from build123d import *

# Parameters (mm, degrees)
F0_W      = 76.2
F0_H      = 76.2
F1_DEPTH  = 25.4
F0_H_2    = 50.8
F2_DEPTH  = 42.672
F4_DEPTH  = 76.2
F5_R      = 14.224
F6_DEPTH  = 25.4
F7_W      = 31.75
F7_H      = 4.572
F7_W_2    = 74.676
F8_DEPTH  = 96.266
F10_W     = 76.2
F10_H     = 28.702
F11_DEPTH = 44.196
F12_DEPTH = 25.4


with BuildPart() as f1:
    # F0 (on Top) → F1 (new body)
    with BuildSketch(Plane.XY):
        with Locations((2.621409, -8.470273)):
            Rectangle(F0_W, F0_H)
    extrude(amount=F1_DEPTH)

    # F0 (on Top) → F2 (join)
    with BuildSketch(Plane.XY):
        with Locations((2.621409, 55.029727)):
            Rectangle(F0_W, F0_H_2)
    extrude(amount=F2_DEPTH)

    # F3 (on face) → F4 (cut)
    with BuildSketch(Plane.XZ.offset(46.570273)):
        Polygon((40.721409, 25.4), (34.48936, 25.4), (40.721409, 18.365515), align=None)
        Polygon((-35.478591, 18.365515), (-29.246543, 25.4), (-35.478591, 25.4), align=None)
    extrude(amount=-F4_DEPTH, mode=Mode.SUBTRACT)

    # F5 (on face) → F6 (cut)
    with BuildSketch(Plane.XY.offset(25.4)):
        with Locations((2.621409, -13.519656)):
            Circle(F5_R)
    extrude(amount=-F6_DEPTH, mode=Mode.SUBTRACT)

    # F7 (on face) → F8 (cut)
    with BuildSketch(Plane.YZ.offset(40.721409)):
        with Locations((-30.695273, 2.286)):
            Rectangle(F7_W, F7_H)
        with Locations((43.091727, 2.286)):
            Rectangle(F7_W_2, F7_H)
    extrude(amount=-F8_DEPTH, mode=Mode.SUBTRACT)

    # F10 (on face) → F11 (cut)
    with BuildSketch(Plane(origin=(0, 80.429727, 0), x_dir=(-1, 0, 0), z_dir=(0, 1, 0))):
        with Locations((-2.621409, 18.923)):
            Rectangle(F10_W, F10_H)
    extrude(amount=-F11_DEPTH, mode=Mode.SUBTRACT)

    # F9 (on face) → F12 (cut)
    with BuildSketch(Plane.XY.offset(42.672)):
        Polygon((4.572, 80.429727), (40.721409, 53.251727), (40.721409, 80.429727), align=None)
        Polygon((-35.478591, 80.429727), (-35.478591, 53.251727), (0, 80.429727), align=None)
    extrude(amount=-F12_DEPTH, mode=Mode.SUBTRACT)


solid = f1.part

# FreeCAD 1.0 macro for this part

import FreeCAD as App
import Part
import Sketcher
Q = App.Units.Quantity

doc = App.newDocument("Part")
body = doc.addObject("PartDesign::Body", "Body")

# Sketch on XY plane
sketch1 = body.newObject("Sketcher::SketchObject", "Sketch")
sketch1.AttachmentSupport = (doc.getObject("XY_Plane"), [""])
sketch1.MapMode = "FlatFace"
sketch1.addGeometry(Part.LineSegment(App.Vector(-35.478591, 29.629727, 0), App.Vector(-35.478591, -46.570273, 0)), False)
sketch1.addGeometry(Part.LineSegment(App.Vector(-35.478591, -46.570273, 0), App.Vector(40.721409, -46.570273, 0)), False)
sketch1.addGeometry(Part.LineSegment(App.Vector(40.721409, -46.570273, 0), App.Vector(40.721409, 29.629727, 0)), False)
sketch1.addGeometry(Part.LineSegment(App.Vector(40.721409, 29.629727, 0), App.Vector(-35.478591, 29.629727, 0)), False)
sketch1.addConstraint(Sketcher.Constraint("Coincident", 0, 2, 1, 1))
sketch1.addConstraint(Sketcher.Constraint("Coincident", 1, 2, 2, 1))
sketch1.addConstraint(Sketcher.Constraint("Coincident", 2, 2, 3, 1))
sketch1.addConstraint(Sketcher.Constraint("Coincident", 3, 2, 0, 1))
sketch1.addConstraint(Sketcher.Constraint("Vertical", 0))
sketch1.addConstraint(Sketcher.Constraint("Horizontal", 1))
sketch1.addConstraint(Sketcher.Constraint("Vertical", 2))
sketch1.addConstraint(Sketcher.Constraint("Horizontal", 3))
sketch1.addConstraint(Sketcher.Constraint("Equal", 3, 0))
sketch1.addConstraint(Sketcher.Constraint("DistanceX", 1, 1, 1, 2, Q("3 in")))
sketch1.addConstraint(Sketcher.Constraint("DistanceX", 0, 2, -1, 1, Q("35.478591 mm")))
sketch1.addConstraint(Sketcher.Constraint("DistanceY", 0, 2, -1, 1, Q("46.570273 mm")))
pad1 = body.newObject("PartDesign::Pad", "Pad")
pad1.Profile = sketch1
pad1.Length = Q("1 in")

# Sketch on XY plane
sketch2 = body.newObject("Sketcher::SketchObject", "Sketch001")
sketch2.AttachmentSupport = (doc.getObject("XY_Plane"), [""])
sketch2.MapMode = "FlatFace"
sketch2.addGeometry(Part.LineSegment(App.Vector(-35.478591, 80.429727, 0), App.Vector(-35.478591, 29.629727, 0)), False)
sketch2.addGeometry(Part.LineSegment(App.Vector(-35.478591, 29.629727, 0), App.Vector(40.721409, 29.629727, 0)), False)
sketch2.addGeometry(Part.LineSegment(App.Vector(40.721409, 29.629727, 0), App.Vector(40.721409, 80.429727, 0)), False)
sketch2.addGeometry(Part.LineSegment(App.Vector(40.721409, 80.429727, 0), App.Vector(-35.478591, 80.429727, 0)), False)
sketch2.addConstraint(Sketcher.Constraint("Coincident", 0, 2, 1, 1))
sketch2.addConstraint(Sketcher.Constraint("Coincident", 1, 2, 2, 1))
sketch2.addConstraint(Sketcher.Constraint("Coincident", 2, 2, 3, 1))
sketch2.addConstraint(Sketcher.Constraint("Coincident", 3, 2, 0, 1))
sketch2.addConstraint(Sketcher.Constraint("Vertical", 0))
sketch2.addConstraint(Sketcher.Constraint("Horizontal", 1))
sketch2.addConstraint(Sketcher.Constraint("Vertical", 2))
sketch2.addConstraint(Sketcher.Constraint("Horizontal", 3))
sketch2.addConstraint(Sketcher.Constraint("DistanceX", 1, 1, 1, 2, Q("3 in")))
sketch2.addConstraint(Sketcher.Constraint("DistanceY", 0, 2, 0, 1, Q("2 in")))
sketch2.addConstraint(Sketcher.Constraint("DistanceX", 0, 2, -1, 1, Q("35.478591 mm")))
sketch2.addConstraint(Sketcher.Constraint("DistanceY", -1, 1, 0, 2, Q("29.629727 mm")))
pad2 = body.newObject("PartDesign::Pad", "Pad001")
pad2.Profile = sketch2
pad2.Length = Q("1.68 in")

# Sketch on XZ plane
sketch3 = body.newObject("Sketcher::SketchObject", "Sketch002")
sketch3.AttachmentSupport = (doc.getObject("XZ_Plane"), [""])
sketch3.MapMode = "FlatFace"
sketch3.AttachmentOffset = App.Placement(App.Vector(0, 0, 46.570273), App.Rotation())
sketch3.addGeometry(Part.LineSegment(App.Vector(40.721409, 25.4, 0), App.Vector(34.48936, 25.4, 0)), False)
sketch3.addGeometry(Part.LineSegment(App.Vector(34.48936, 25.4, 0), App.Vector(40.721409, 18.365515, 0)), False)
sketch3.addGeometry(Part.LineSegment(App.Vector(40.721409, 18.365515, 0), App.Vector(40.721409, 25.4, 0)), False)
sketch3.addGeometry(Part.LineSegment(App.Vector(-35.478591, 18.365515, 0), App.Vector(-29.246543, 25.4, 0)), False)
sketch3.addGeometry(Part.LineSegment(App.Vector(-29.246543, 25.4, 0), App.Vector(-35.478591, 25.4, 0)), False)
sketch3.addGeometry(Part.LineSegment(App.Vector(-35.478591, 25.4, 0), App.Vector(-35.478591, 18.365515, 0)), False)
sketch3.addConstraint(Sketcher.Constraint("Coincident", 0, 2, 1, 1))
sketch3.addConstraint(Sketcher.Constraint("Coincident", 1, 2, 2, 1))
sketch3.addConstraint(Sketcher.Constraint("Coincident", 2, 2, 0, 1))
sketch3.addConstraint(Sketcher.Constraint("Coincident", 3, 2, 4, 1))
sketch3.addConstraint(Sketcher.Constraint("Coincident", 4, 2, 5, 1))
sketch3.addConstraint(Sketcher.Constraint("Coincident", 5, 2, 3, 1))
sketch3.addConstraint(Sketcher.Constraint("Horizontal", 0))
sketch3.addConstraint(Sketcher.Constraint("Vertical", 2))
sketch3.addConstraint(Sketcher.Constraint("Horizontal", 4))
sketch3.addConstraint(Sketcher.Constraint("Vertical", 5))
sketch3.addConstraint(Sketcher.Constraint("Horizontal", 2, 2, 3, 2))
sketch3.addConstraint(Sketcher.Constraint("Horizontal", 1, 2, 5, 2))
sketch3.addConstraint(Sketcher.Constraint("Equal", 0, 4))
sketch3.addConstraint(Sketcher.Constraint("DistanceY", -1, 1, 0, 2, Q("1 in")))
sketch3.addConstraint(Sketcher.Constraint("DistanceX", 4, 2, 2, 2, Q("3 in")))
sketch3.addConstraint(Sketcher.Constraint("Distance", 1, Q("0.37 in")))
sketch3.addConstraint(Sketcher.Constraint("DistanceX", 0, 2, 0, 1, Q("6.232049 mm")))
sketch3.addConstraint(Sketcher.Constraint("DistanceX", -1, 1, 0, 2, Q("34.48936 mm")))
pocket1 = body.newObject("PartDesign::Pocket", "Pocket")
pocket1.Profile = sketch3
pocket1.Length = Q("3 in")

# Sketch on XY plane
sketch4 = body.newObject("Sketcher::SketchObject", "Sketch003")
sketch4.AttachmentSupport = (doc.getObject("XY_Plane"), [""])
sketch4.MapMode = "FlatFace"
sketch4.AttachmentOffset = App.Placement(App.Vector(0, 0, 1 * 25.4), App.Rotation())
sketch4.addGeometry(Part.Circle(App.Vector(2.621409, -13.519656, 0), App.Vector(0, 0, 1), 14.224), False)
sketch4.addConstraint(Sketcher.Constraint("Diameter", 0, Q("1.12 in")))
sketch4.addConstraint(Sketcher.Constraint("DistanceX", -1, 1, 0, 3, Q("2.621409 mm")))
sketch4.addConstraint(Sketcher.Constraint("DistanceY", 0, 3, -1, 1, Q("13.519656 mm")))
pocket2 = body.newObject("PartDesign::Pocket", "Pocket001")
pocket2.Profile = sketch4
pocket2.Length = Q("1 in")

# Sketch on YZ plane
sketch5 = body.newObject("Sketcher::SketchObject", "Sketch004")
sketch5.AttachmentSupport = (doc.getObject("YZ_Plane"), [""])
sketch5.MapMode = "FlatFace"
sketch5.AttachmentOffset = App.Placement(App.Vector(0, 0, 40.721409), App.Rotation())
sketch5.addGeometry(Part.LineSegment(App.Vector(-46.570273, 4.572, 0), App.Vector(-46.570273, 0, 0)), False)
sketch5.addGeometry(Part.LineSegment(App.Vector(-46.570273, 0, 0), App.Vector(-14.820273, 0, 0)), False)
sketch5.addGeometry(Part.LineSegment(App.Vector(-14.820273, 0, 0), App.Vector(-14.820273, 4.572, 0)), False)
sketch5.addGeometry(Part.LineSegment(App.Vector(-14.820273, 4.572, 0), App.Vector(-46.570273, 4.572, 0)), False)
sketch5.addGeometry(Part.LineSegment(App.Vector(5.753727, 4.572, 0), App.Vector(5.753727, 0, 0)), False)
sketch5.addGeometry(Part.LineSegment(App.Vector(5.753727, 0, 0), App.Vector(80.429727, 0, 0)), False)
sketch5.addGeometry(Part.LineSegment(App.Vector(80.429727, 0, 0), App.Vector(80.429727, 4.572, 0)), False)
sketch5.addGeometry(Part.LineSegment(App.Vector(80.429727, 4.572, 0), App.Vector(5.753727, 4.572, 0)), False)
sketch5.addConstraint(Sketcher.Constraint("Coincident", 0, 2, 1, 1))
sketch5.addConstraint(Sketcher.Constraint("Coincident", 1, 2, 2, 1))
sketch5.addConstraint(Sketcher.Constraint("Coincident", 2, 2, 3, 1))
sketch5.addConstraint(Sketcher.Constraint("Coincident", 3, 2, 0, 1))
sketch5.addConstraint(Sketcher.Constraint("Coincident", 4, 2, 5, 1))
sketch5.addConstraint(Sketcher.Constraint("Coincident", 5, 2, 6, 1))
sketch5.addConstraint(Sketcher.Constraint("Coincident", 6, 2, 7, 1))
sketch5.addConstraint(Sketcher.Constraint("Coincident", 7, 2, 4, 1))
sketch5.addConstraint(Sketcher.Constraint("Vertical", 0))
sketch5.addConstraint(Sketcher.Constraint("Horizontal", 1))
sketch5.addConstraint(Sketcher.Constraint("Vertical", 2))
sketch5.addConstraint(Sketcher.Constraint("Horizontal", 3))
sketch5.addConstraint(Sketcher.Constraint("Vertical", 4))
sketch5.addConstraint(Sketcher.Constraint("Horizontal", 5))
sketch5.addConstraint(Sketcher.Constraint("Vertical", 6))
sketch5.addConstraint(Sketcher.Constraint("Horizontal", 7))
sketch5.addConstraint(Sketcher.Constraint("PointOnObject", 0, 2, -1))
sketch5.addConstraint(Sketcher.Constraint("PointOnObject", 4, 2, -1))
sketch5.addConstraint(Sketcher.Constraint("Horizontal", 3, 2, 6, 2))
sketch5.addConstraint(Sketcher.Constraint("DistanceX", 0, 2, 5, 2, Q("5 in")))
sketch5.addConstraint(Sketcher.Constraint("DistanceX", 1, 1, 1, 2, Q("1.25 in")))
sketch5.addConstraint(Sketcher.Constraint("DistanceX", 5, 1, 5, 2, Q("2.94 in")))
sketch5.addConstraint(Sketcher.Constraint("DistanceY", 0, 2, 0, 1, Q("0.18 in")))
sketch5.addConstraint(Sketcher.Constraint("DistanceX", 0, 2, -1, 1, Q("46.570273 mm")))
pocket3 = body.newObject("PartDesign::Pocket", "Pocket002")
pocket3.Profile = sketch5
pocket3.Length = Q("3.79 in")

# Sketch on XZ plane
sketch6 = body.newObject("Sketcher::SketchObject", "Sketch005")
sketch6.AttachmentSupport = (doc.getObject("XZ_Plane"), [""])
sketch6.MapMode = "FlatFace"
sketch6.AttachmentOffset = App.Placement(App.Vector(0, 0, -80.429727), App.Rotation())
sketch6.addGeometry(Part.LineSegment(App.Vector(40.721409, 33.274, 0), App.Vector(40.721409, 4.572, 0)), False)
sketch6.addGeometry(Part.LineSegment(App.Vector(40.721409, 4.572, 0), App.Vector(-35.478591, 4.572, 0)), False)
sketch6.addGeometry(Part.LineSegment(App.Vector(-35.478591, 4.572, 0), App.Vector(-35.478591, 33.274, 0)), False)
sketch6.addGeometry(Part.LineSegment(App.Vector(-35.478591, 33.274, 0), App.Vector(40.721409, 33.274, 0)), False)
sketch6.addConstraint(Sketcher.Constraint("Coincident", 0, 2, 1, 1))
sketch6.addConstraint(Sketcher.Constraint("Coincident", 1, 2, 2, 1))
sketch6.addConstraint(Sketcher.Constraint("Coincident", 2, 2, 3, 1))
sketch6.addConstraint(Sketcher.Constraint("Coincident", 3, 2, 0, 1))
sketch6.addConstraint(Sketcher.Constraint("Vertical", 0))
sketch6.addConstraint(Sketcher.Constraint("Horizontal", 1))
sketch6.addConstraint(Sketcher.Constraint("Vertical", 2))
sketch6.addConstraint(Sketcher.Constraint("Horizontal", 3))
sketch6.addConstraint(Sketcher.Constraint("DistanceX", 1, 2, 1, 1, Q("3 in")))
sketch6.addConstraint(Sketcher.Constraint("DistanceY", 0, 2, 0, 1, Q("1.13 in")))
sketch6.addConstraint(Sketcher.Constraint("DistanceY", -1, 1, 0, 2, Q("0.18 in")))
sketch6.addConstraint(Sketcher.Constraint("DistanceX", -1, 1, 0, 2, Q("40.721409 mm")))
pocket4 = body.newObject("PartDesign::Pocket", "Pocket003")
pocket4.Profile = sketch6
pocket4.Length = Q("1.74 in")
pocket4.Reversed = True

# Sketch on XY plane
sketch7 = body.newObject("Sketcher::SketchObject", "Sketch006")
sketch7.AttachmentSupport = (doc.getObject("XY_Plane"), [""])
sketch7.MapMode = "FlatFace"
sketch7.AttachmentOffset = App.Placement(App.Vector(0, 0, 1.68 * 25.4), App.Rotation())
sketch7.addGeometry(Part.LineSegment(App.Vector(4.572, 80.429727, 0), App.Vector(40.721409, 53.251727, 0)), False)
sketch7.addGeometry(Part.LineSegment(App.Vector(40.721409, 53.251727, 0), App.Vector(40.721409, 80.429727, 0)), False)
sketch7.addGeometry(Part.LineSegment(App.Vector(40.721409, 80.429727, 0), App.Vector(4.572, 80.429727, 0)), False)
sketch7.addGeometry(Part.LineSegment(App.Vector(-35.478591, 80.429727, 0), App.Vector(-35.478591, 53.251727, 0)), False)
sketch7.addGeometry(Part.LineSegment(App.Vector(-35.478591, 53.251727, 0), App.Vector(0, 80.429727, 0)), False)
sketch7.addGeometry(Part.LineSegment(App.Vector(0, 80.429727, 0), App.Vector(-35.478591, 80.429727, 0)), False)
sketch7.addConstraint(Sketcher.Constraint("Coincident", 0, 2, 1, 1))
sketch7.addConstraint(Sketcher.Constraint("Coincident", 1, 2, 2, 1))
sketch7.addConstraint(Sketcher.Constraint("Coincident", 2, 2, 0, 1))
sketch7.addConstraint(Sketcher.Constraint("Coincident", 3, 2, 4, 1))
sketch7.addConstraint(Sketcher.Constraint("Coincident", 4, 2, 5, 1))
sketch7.addConstraint(Sketcher.Constraint("Coincident", 5, 2, 3, 1))
sketch7.addConstraint(Sketcher.Constraint("Vertical", 1))
sketch7.addConstraint(Sketcher.Constraint("Horizontal", 2))
sketch7.addConstraint(Sketcher.Constraint("Vertical", 3))
sketch7.addConstraint(Sketcher.Constraint("Horizontal", 5))
sketch7.addConstraint(Sketcher.Constraint("PointOnObject", 4, 2, -2))
sketch7.addConstraint(Sketcher.Constraint("Horizontal", 0, 2, 3, 2))
sketch7.addConstraint(Sketcher.Constraint("Horizontal", 2, 2, 4, 2))
sketch7.addConstraint(Sketcher.Constraint("DistanceX", 3, 2, 0, 2, Q("3 in")))
sketch7.addConstraint(Sketcher.Constraint("DistanceY", 1, 1, 1, 2, Q("1.07 in")))
sketch7.addConstraint(Sketcher.Constraint("DistanceX", -1, 1, 2, 2, Q("0.18 in")))
sketch7.addConstraint(Sketcher.Constraint("DistanceX", 2, 2, 2, 1, Q("36.149409 mm")))
sketch7.addConstraint(Sketcher.Constraint("DistanceY", -1, 1, 0, 2, Q("53.251727 mm")))
pocket5 = body.newObject("PartDesign::Pocket", "Pocket004")
pocket5.Profile = sketch7
pocket5.Length = Q("1 in")

doc.recompute()
